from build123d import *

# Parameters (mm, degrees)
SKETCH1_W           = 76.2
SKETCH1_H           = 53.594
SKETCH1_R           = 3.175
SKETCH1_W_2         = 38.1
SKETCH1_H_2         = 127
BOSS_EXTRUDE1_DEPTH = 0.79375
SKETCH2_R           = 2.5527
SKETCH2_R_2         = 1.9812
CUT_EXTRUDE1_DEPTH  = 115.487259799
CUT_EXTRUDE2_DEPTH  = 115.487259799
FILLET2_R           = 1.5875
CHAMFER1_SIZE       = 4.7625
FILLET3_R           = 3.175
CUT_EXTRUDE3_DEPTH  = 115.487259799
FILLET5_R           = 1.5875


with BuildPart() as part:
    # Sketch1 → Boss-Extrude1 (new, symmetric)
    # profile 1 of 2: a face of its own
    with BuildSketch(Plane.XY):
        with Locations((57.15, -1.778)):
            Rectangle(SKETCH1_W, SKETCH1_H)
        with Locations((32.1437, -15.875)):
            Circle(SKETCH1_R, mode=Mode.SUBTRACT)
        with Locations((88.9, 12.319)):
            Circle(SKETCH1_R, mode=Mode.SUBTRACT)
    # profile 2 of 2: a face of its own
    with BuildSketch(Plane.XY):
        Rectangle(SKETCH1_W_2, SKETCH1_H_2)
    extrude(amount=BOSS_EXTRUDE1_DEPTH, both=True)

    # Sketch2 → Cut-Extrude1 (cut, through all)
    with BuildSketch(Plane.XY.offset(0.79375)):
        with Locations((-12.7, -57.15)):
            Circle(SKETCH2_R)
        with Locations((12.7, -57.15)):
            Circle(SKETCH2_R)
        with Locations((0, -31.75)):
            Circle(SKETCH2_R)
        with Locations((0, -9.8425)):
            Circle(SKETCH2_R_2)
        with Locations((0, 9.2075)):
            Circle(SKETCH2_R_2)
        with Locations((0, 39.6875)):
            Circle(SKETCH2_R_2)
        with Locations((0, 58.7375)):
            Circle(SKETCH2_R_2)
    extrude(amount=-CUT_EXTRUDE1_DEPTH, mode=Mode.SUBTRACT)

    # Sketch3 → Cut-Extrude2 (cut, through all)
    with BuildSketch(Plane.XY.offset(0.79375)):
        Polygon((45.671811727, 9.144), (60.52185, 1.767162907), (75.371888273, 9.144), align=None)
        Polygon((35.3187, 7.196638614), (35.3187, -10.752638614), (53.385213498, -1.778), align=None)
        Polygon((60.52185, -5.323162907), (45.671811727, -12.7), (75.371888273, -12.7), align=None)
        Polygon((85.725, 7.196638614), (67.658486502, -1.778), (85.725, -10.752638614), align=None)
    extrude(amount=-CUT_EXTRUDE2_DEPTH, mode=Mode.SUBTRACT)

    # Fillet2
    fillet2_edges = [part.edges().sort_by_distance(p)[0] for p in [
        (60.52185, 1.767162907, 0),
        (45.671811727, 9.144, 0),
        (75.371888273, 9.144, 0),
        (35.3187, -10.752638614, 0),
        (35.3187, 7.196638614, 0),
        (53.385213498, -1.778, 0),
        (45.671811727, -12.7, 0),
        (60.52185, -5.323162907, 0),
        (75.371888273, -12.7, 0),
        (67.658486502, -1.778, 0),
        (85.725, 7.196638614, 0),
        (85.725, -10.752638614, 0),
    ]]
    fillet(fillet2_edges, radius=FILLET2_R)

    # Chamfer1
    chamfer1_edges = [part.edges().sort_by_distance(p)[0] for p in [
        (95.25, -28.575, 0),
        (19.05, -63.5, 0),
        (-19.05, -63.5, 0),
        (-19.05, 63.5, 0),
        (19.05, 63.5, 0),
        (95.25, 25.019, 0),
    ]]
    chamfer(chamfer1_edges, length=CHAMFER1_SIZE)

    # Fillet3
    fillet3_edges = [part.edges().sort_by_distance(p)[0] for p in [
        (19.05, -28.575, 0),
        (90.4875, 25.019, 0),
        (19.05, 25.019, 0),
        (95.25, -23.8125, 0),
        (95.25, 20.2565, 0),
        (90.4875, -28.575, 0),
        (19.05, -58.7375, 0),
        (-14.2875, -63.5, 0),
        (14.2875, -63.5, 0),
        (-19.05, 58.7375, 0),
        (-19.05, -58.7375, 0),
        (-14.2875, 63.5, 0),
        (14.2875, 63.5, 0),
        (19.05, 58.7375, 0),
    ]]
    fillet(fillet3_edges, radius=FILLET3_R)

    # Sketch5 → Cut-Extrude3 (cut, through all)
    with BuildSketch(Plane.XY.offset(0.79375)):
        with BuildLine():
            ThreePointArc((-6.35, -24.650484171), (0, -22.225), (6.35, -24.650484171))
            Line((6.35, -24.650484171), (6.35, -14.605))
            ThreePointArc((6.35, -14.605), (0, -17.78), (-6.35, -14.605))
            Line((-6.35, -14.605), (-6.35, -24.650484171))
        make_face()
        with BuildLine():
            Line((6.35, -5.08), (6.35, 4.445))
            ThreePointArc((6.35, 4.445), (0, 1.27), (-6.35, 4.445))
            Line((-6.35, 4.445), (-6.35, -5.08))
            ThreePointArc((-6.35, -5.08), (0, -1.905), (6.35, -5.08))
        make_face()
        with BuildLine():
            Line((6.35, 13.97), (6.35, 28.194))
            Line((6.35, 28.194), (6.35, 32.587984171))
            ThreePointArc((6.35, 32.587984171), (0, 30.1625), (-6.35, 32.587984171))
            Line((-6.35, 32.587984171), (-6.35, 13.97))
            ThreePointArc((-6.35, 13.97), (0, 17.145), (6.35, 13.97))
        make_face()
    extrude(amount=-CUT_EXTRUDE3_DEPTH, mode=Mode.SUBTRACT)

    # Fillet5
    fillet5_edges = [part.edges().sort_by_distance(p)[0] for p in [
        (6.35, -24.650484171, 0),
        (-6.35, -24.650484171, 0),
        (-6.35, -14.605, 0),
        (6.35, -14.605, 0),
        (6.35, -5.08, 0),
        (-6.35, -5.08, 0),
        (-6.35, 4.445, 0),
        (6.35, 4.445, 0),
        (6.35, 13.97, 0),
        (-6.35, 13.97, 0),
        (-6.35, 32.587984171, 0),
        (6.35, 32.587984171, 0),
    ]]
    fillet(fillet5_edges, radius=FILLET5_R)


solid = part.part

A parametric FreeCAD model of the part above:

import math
import FreeCAD as App
import Part
import Sketcher
from FreeCAD import Vector
Q = App.Units.Quantity


def edges_at(feature, points):
    """Names of the edges that pass closest to the given points."""
    edges = feature.Shape.Edges
    near = lambda p: min(range(len(edges)), key=lambda i: edges[i].distToShape(Part.Vertex(*p))[0])
    return sorted({f"Edge{near(p) + 1}" for p in points})

doc = App.newDocument("Part")
body = doc.addObject("PartDesign::Body", "Body")

sketch1 = body.newObject("Sketcher::SketchObject", "Sketch")
sketch1.AttachmentSupport = (doc.getObject("XY_Plane"), [""])
sketch1.MapMode = "FlatFace"
sketch1.addGeometry([
    Part.LineSegment(Vector(19.05, -28.575, 0), Vector(95.25, -28.575, 0)),
    Part.LineSegment(Vector(95.25, -28.575, 0), Vector(95.25, 25.019, 0)),
    Part.LineSegment(Vector(95.25, 25.019, 0), Vector(19.05, 25.019, 0)),
    Part.LineSegment(Vector(19.05, 25.019, 0), Vector(19.05, 63.5, 0)),
    Part.LineSegment(Vector(19.05, 63.5, 0), Vector(-19.05, 63.5, 0)),
    Part.LineSegment(Vector(-19.05, 63.5, 0), Vector(-19.05, -63.5, 0)),
    Part.LineSegment(Vector(-19.05, -63.5, 0), Vector(19.05, -63.5, 0)),
    Part.LineSegment(Vector(19.05, -63.5, 0), Vector(19.05, -28.575, 0)),
    Part.Circle(Vector(32.1437, -15.875, 0), Vector(0, 0, 1), 3.175),
    Part.Circle(Vector(88.9, 12.319, 0), Vector(0, 0, 1), 3.175),
], False)
sketch1.addConstraint([
    Sketcher.Constraint("Coincident", 0, 2, 1, 1),
    Sketcher.Constraint("Coincident", 1, 2, 2, 1),
    Sketcher.Constraint("Coincident", 2, 2, 3, 1),
    Sketcher.Constraint("Coincident", 3, 2, 4, 1),
    Sketcher.Constraint("Coincident", 4, 2, 5, 1),
    Sketcher.Constraint("Coincident", 5, 2, 6, 1),
    Sketcher.Constraint("Coincident", 6, 2, 7, 1),
    Sketcher.Constraint("Coincident", 7, 2, 0, 1),
    Sketcher.Constraint("Horizontal", 0),
    Sketcher.Constraint("Vertical", 1),
    Sketcher.Constraint("Horizontal", 2),
    Sketcher.Constraint("Vertical", 3),
    Sketcher.Constraint("Horizontal", 4),
    Sketcher.Constraint("Vertical", 5),
    Sketcher.Constraint("Horizontal", 6),
    Sketcher.Constraint("Vertical", 7),
    Sketcher.Constraint("Equal", 8, 9),
    Sketcher.Constraint("Symmetric", 3, 2, 5, 2, -1, 1),
    Sketcher.Constraint("Vertical", 3, 2, 6, 2),
    Sketcher.Constraint("Diameter", 8, Q("0.25 in")),
    Sketcher.Constraint("DistanceX", 0, 1, 0, 2, Q("3 in")),
    Sketcher.Constraint("DistanceY", 5, 2, 5, 1, Q("5 in")),
    Sketcher.Constraint("DistanceX", 4, 2, 4, 1, Q("1.5 in")),
    Sketcher.Constraint("DistanceY", 1, 1, 1, 2, Q("2.11 in")),
    Sketcher.Constraint("DistanceX", -1, 1, 9, 3, Q("3.5 in")),
    Sketcher.Constraint("DistanceY", 0, 2, 8, 3, Q("0.5 in")),
    Sketcher.Constraint("DistanceY", 9, 3, 1, 2, Q("0.5 in")),
    Sketcher.Constraint("DistanceY", 3, 1, 3, 2, Q("1.515 in")),
    Sketcher.Constraint("DistanceX", -1, 1, 8, 3, Q("1.2655 in")),
])
pad1 = body.newObject("PartDesign::Pad", "Pad")
pad1.Profile = sketch1
pad1.Length = Q("0.0625 in")
pad1.Midplane = True

sketch2 = body.newObject("Sketcher::SketchObject", "Sketch001")
sketch2.AttachmentSupport = (doc.getObject("XY_Plane"), [""])
sketch2.MapMode = "FlatFace"
sketch2.AttachmentOffset = App.Placement(Vector(0, 0, 0.03125 * 25.4), App.Rotation())
sketch2.addGeometry([
    Part.Circle(Vector(-12.7, -57.15, 0), Vector(0, 0, 1), 2.5527),
    Part.Circle(Vector(12.7, -57.15, 0), Vector(0, 0, 1), 2.5527),
    Part.Circle(Vector(0, -31.75, 0), Vector(0, 0, 1), 2.5527),
    Part.Circle(Vector(0, -9.8425, 0), Vector(0, 0, 1), 1.9812),
    Part.Circle(Vector(0, 9.2075, 0), Vector(0, 0, 1), 1.9812),
    Part.Circle(Vector(0, 39.6875, 0), Vector(0, 0, 1), 1.9812),
    Part.Circle(Vector(0, 58.7375, 0), Vector(0, 0, 1), 1.9812),
], False)
sketch2.addConstraint([
    Sketcher.Constraint("Equal", 0, 1),
    Sketcher.Constraint("Equal", 1, 2),
    Sketcher.Constraint("Equal", 3, 4),
    Sketcher.Constraint("Equal", 4, 5),
    Sketcher.Constraint("Equal", 5, 6),
    Sketcher.Constraint("Symmetric", 0, 3, 1, 3, -2),
    Sketcher.Constraint("PointOnObject", 2, 3, -2),
    Sketcher.Constraint("PointOnObject", 3, 3, -2),
    Sketcher.Constraint("PointOnObject", 4, 3, -2),
    Sketcher.Constraint("PointOnObject", 5, 3, -2),
    Sketcher.Constraint("PointOnObject", 6, 3, -2),
    Sketcher.Constraint("Diameter", 0, Q("0.201 in")),
    Sketcher.Constraint("Diameter", 3, Q("0.156 in")),
    Sketcher.Constraint("DistanceX", 0, 3, 1, 3, Q("1 in")),
    Sketcher.Constraint("DistanceY", 0, 3, 2, 3, Q("1 in")),
    Sketcher.Constraint("DistanceY", 4, 3, 5, 3, Q("1.2 in")),
    Sketcher.Constraint("DistanceY", 3, 3, 6, 3, Q("2.7 in")),
    Sketcher.Constraint("DistanceY", 0, 3, -1, 1, Q("2.25 in")),
    Sketcher.Constraint("DistanceY", 3, 3, 4, 3, Q("0.75 in")),
    Sketcher.Constraint("DistanceY", -1, 1, 5, 3, Q("1.5625 in")),
])
pocket1 = body.newObject("PartDesign::Pocket", "Pocket")
pocket1.Profile = sketch2
pocket1.Type = "ThroughAll"

sketch3 = body.newObject("Sketcher::SketchObject", "Sketch002")
sketch3.AttachmentSupport = (doc.getObject("XY_Plane"), [""])
sketch3.MapMode = "FlatFace"
sketch3.AttachmentOffset = App.Placement(Vector(0, 0, 0.03125 * 25.4), App.Rotation())
sketch3.addGeometry([
    Part.LineSegment(Vector(45.671812, 9.144, 0), Vector(60.52185, 1.767163, 0)),
    Part.LineSegment(Vector(60.52185, 1.767163, 0), Vector(75.371888, 9.144, 0)),
    Part.LineSegment(Vector(75.371888, 9.144, 0), Vector(45.671812, 9.144, 0)),
    Part.LineSegment(Vector(35.3187, 7.196639, 0), Vector(35.3187, -10.752639, 0)),
    Part.LineSegment(Vector(35.3187, -10.752639, 0), Vector(53.385213, -1.778, 0)),
    Part.LineSegment(Vector(53.385213, -1.778, 0), Vector(35.3187, 7.196639, 0)),
    Part.LineSegment(Vector(60.52185, -5.323163, 0), Vector(45.671812, -12.7, 0)),
    Part.LineSegment(Vector(45.671812, -12.7, 0), Vector(75.371888, -12.7, 0)),
    Part.LineSegment(Vector(75.371888, -12.7, 0), Vector(60.52185, -5.323163, 0)),
    Part.LineSegment(Vector(85.725, 7.196639, 0), Vector(67.658487, -1.778, 0)),
    Part.LineSegment(Vector(67.658487, -1.778, 0), Vector(85.725, -10.752639, 0)),
    Part.LineSegment(Vector(85.725, -10.752639, 0), Vector(85.725, 7.196639, 0)),
], False)
sketch3.addConstraint([
    Sketcher.Constraint("Coincident", 0, 2, 1, 1),
    Sketcher.Constraint("Coincident", 1, 2, 2, 1),
    Sketcher.Constraint("Coincident", 2, 2, 0, 1),
    Sketcher.Constraint("Coincident", 3, 2, 4, 1),
    Sketcher.Constraint("Coincident", 4, 2, 5, 1),
    Sketcher.Constraint("Coincident", 5, 2, 3, 1),
    Sketcher.Constraint("Coincident", 6, 2, 7, 1),
    Sketcher.Constraint("Coincident", 7, 2, 8, 1),
    Sketcher.Constraint("Coincident", 8, 2, 6, 1),
    Sketcher.Constraint("Coincident", 9, 2, 10, 1),
    Sketcher.Constraint("Coincident", 10, 2, 11, 1),
    Sketcher.Constraint("Coincident", 11, 2, 9, 1),
    Sketcher.Constraint("Horizontal", 2),
    Sketcher.Constraint("Vertical", 3),
    Sketcher.Constraint("Horizontal", 7),
    Sketcher.Constraint("Vertical", 11),
    Sketcher.Constraint("Parallel", 1, 4),
    Sketcher.Constraint("Parallel", 0, 5),
    Sketcher.Constraint("Parallel", 4, 6),
    Sketcher.Constraint("Parallel", 5, 8),
    Sketcher.Constraint("Parallel", 6, 9),
    Sketcher.Constraint("Parallel", 8, 10),
    Sketcher.Constraint("Horizontal", 4, 2, 9, 2),
    Sketcher.Constraint("Horizontal", 3, 2, 10, 2),
    Sketcher.Constraint("Horizontal", 5, 2, 11, 2),
    Sketcher.Constraint("Vertical", 2, 2, 6, 2),
    Sketcher.Constraint("Vertical", 1, 2, 7, 2),
    Sketcher.Constraint("DistanceY", 6, 2, -1, 1, Q("0.5 in")),
    Sketcher.Constraint("DistanceY", -1, 1, 1, 2, Q("0.36 in")),
    Sketcher.Constraint("DistanceY", 4, 2, -1, 1, Q("0.07 in")),
    Sketcher.Constraint("DistanceX", -1, 1, 10, 2, Q("3.375 in")),
    Sketcher.Constraint("DistanceX", -1, 1, 3, 2, Q("1.3905 in")),
    Sketcher.Constraint("DistanceY", 3, 2, 0, 2, Q("12.519802 mm")),
    Sketcher.Constraint("DistanceX", 2, 2, 4, 2, Q("7.713402 mm")),
    Sketcher.Constraint("DistanceX", 9, 2, 1, 2, Q("7.713402 mm")),
    Sketcher.Constraint("Distance", 4, Q("20.172829 mm")),
])
pocket2 = body.newObject("PartDesign::Pocket", "Pocket001")
pocket2.Profile = sketch3
pocket2.Type = "ThroughAll"
doc.recompute()

fillet = body.newObject("PartDesign::Fillet", "Fillet")
fillet.Base = (pocket2, edges_at(pocket2, [
    (60.522, 1.767, 0),
    (45.672, 9.144, 0),
    (75.372, 9.144, 0),
    (35.319, -10.753, 0),
    (35.319, 7.197, 0),
    (53.385, -1.778, 0),
    (45.672, -12.7, 0),
    (60.522, -5.323, 0),
    (75.372, -12.7, 0),
    (67.658, -1.778, 0),
    (85.725, 7.197, 0),
    (85.725, -10.753, 0),
]))
fillet.Radius = Q("0.0625 in")
doc.recompute()

chamfer = body.newObject("PartDesign::Chamfer", "Chamfer")
chamfer.Base = (fillet, edges_at(fillet, [
    (95.25, -28.575, 0),
    (19.05, -63.5, 0),
    (-19.05, -63.5, 0),
    (-19.05, 63.5, 0),
    (19.05, 63.5, 0),
    (95.25, 25.019, 0),
]))
chamfer.Size = Q("0.1875 in")
doc.recompute()

fillet2 = body.newObject("PartDesign::Fillet", "Fillet001")
fillet2.Base = (chamfer, edges_at(chamfer, [
    (19.05, -28.575, 0),
    (90.487, 25.019, 0),
    (19.05, 25.019, 0),
    (95.25, -23.812, 0),
    (95.25, 20.256, 0),
    (90.487, -28.575, 0),
    (19.05, -58.737, 0),
    (-14.287, -63.5, 0),
    (14.287, -63.5, 0),
    (-19.05, 58.737, 0),
    (-19.05, -58.737, 0),
    (-14.287, 63.5, 0),
    (14.287, 63.5, 0),
    (19.05, 58.737, 0),
]))
fillet2.Radius = Q("0.125 in")

sketch4 = body.newObject("Sketcher::SketchObject", "Sketch003")
sketch4.AttachmentSupport = (doc.getObject("XY_Plane"), [""])
sketch4.MapMode = "FlatFace"
sketch4.AttachmentOffset = App.Placement(Vector(0, 0, 0.03125 * 25.4), App.Rotation())
sketch4.addGeometry([
    Part.ArcOfCircle(Part.Circle(Vector(0, -31.75, 0), Vector(0, 0, 1), 9.525), math.radians(48.189685), math.radians(131.810315)),
    Part.LineSegment(Vector(6.35, -24.650484, 0), Vector(6.35, -14.605, 0)),
    Part.ArcOfCircle(Part.Circle(Vector(0, -9.8425, 0), Vector(0, 0, 1), 7.9375), math.radians(-143.130102), math.radians(-36.869898)),
    Part.LineSegment(Vector(-6.35, -14.605, 0), Vector(-6.35, -24.650484, 0)),
    Part.LineSegment(Vector(6.35, -5.08, 0), Vector(6.35, 4.445, 0)),
    Part.ArcOfCircle(Part.Circle(Vector(0, 9.2075, 0), Vector(0, 0, 1), 7.9375), math.radians(-143.130102), math.radians(-36.869898)),
    Part.LineSegment(Vector(-6.35, 4.445, 0), Vector(-6.35, -5.08, 0)),
    Part.ArcOfCircle(Part.Circle(Vector(0, -9.8425, 0), Vector(0, 0, 1), 7.9375), math.radians(36.869898), math.radians(143.130102)),
    Part.LineSegment(Vector(6.35, 13.97, 0), Vector(6.35, 32.587984, 0)),
    Part.ArcOfCircle(Part.Circle(Vector(0, 39.6875, 0), Vector(0, 0, 1), 9.525), math.radians(-131.810315), math.radians(-48.189685)),
    Part.LineSegment(Vector(-6.35, 32.587984, 0), Vector(-6.35, 13.97, 0)),
    Part.ArcOfCircle(Part.Circle(Vector(0, 9.2075, 0), Vector(0, 0, 1), 7.9375), math.radians(36.869898), math.radians(143.130102)),
], False)
sketch4.addConstraint([
    Sketcher.Constraint("Coincident", 0, 1, 1, 1),
    Sketcher.Constraint("Coincident", 1, 2, 2, 2),
    Sketcher.Constraint("Coincident", 2, 1, 3, 1),
    Sketcher.Constraint("Coincident", 3, 2, 0, 2),
    Sketcher.Constraint("Coincident", 4, 2, 5, 2),
    Sketcher.Constraint("Coincident", 5, 1, 6, 1),
    Sketcher.Constraint("Coincident", 6, 2, 7, 2),
    Sketcher.Constraint("Coincident", 7, 1, 4, 1),
    Sketcher.Constraint("Coincident", 8, 2, 9, 2),
    Sketcher.Constraint("Coincident", 9, 1, 10, 1),
    Sketcher.Constraint("Coincident", 10, 2, 11, 2),
    Sketcher.Constraint("Coincident", 11, 1, 8, 1),
    Sketcher.Constraint("Vertical", 1),
    Sketcher.Constraint("Vertical", 3),
    Sketcher.Constraint("Vertical", 4),
    Sketcher.Constraint("Vertical", 6),
    Sketcher.Constraint("Vertical", 8),
    Sketcher.Constraint("Vertical", 10),
    Sketcher.Constraint("Coincident", 7, 3, 2, 3),
    Sketcher.Constraint("Coincident", 11, 3, 5, 3),
    Sketcher.Constraint("Equal", 2, 5),
    Sketcher.Constraint("Equal", 5, 7),
    Sketcher.Constraint("Equal", 0, 9),
    Sketcher.Constraint("Equal", 7, 11),
    Sketcher.Constraint("Symmetric", 1, 2, 2, 1, -2),
    Sketcher.Constraint("Symmetric", 4, 2, 5, 1, -2),
    Sketcher.Constraint("Symmetric", 8, 2, 9, 1, -2),
    Sketcher.Constraint("PointOnObject", 0, 3, -2),
    Sketcher.Constraint("Vertical", 1, 2, 4, 2),
    Sketcher.Constraint("Vertical", 7, 1, 8, 2),
    Sketcher.Constraint("Radius", 0, Q("0.375 in")),
    Sketcher.Constraint("Radius", 2, Q("0.3125 in")),
    Sketcher.Constraint("DistanceY", 6, 2, -1, 1, Q("0.2 in")),
    Sketcher.Constraint("DistanceY", 5, 3, 9, 3, Q("1.2 in")),
    Sketcher.Constraint("DistanceX", 2, 1, 1, 2, Q("0.5 in")),
    Sketcher.Constraint("DistanceY", 4, 1, 4, 2, Q("0.375 in")),
    Sketcher.Constraint("DistanceY", 0, 3, -1, 1, Q("1.25 in")),
])
pocket3 = body.newObject("PartDesign::Pocket", "Pocket002")
pocket3.Profile = sketch4
pocket3.Type = "ThroughAll"
doc.recompute()

fillet3 = body.newObject("PartDesign::Fillet", "Fillet002")
fillet3.Base = (pocket3, edges_at(pocket3, [
    (6.35, -24.65, 0),
    (-6.35, -24.65, 0),
    (-6.35, -14.605, 0),
    (6.35, -14.605, 0),
    (6.35, -5.08, 0),
    (-6.35, -5.08, 0),
    (-6.35, 4.445, 0),
    (6.35, 4.445, 0),
    (6.35, 13.97, 0),
    (-6.35, 13.97, 0),
    (-6.35, 32.588, 0),
    (6.35, 32.588, 0),
]))
fillet3.Radius = Q("0.0625 in")

doc.recompute()
